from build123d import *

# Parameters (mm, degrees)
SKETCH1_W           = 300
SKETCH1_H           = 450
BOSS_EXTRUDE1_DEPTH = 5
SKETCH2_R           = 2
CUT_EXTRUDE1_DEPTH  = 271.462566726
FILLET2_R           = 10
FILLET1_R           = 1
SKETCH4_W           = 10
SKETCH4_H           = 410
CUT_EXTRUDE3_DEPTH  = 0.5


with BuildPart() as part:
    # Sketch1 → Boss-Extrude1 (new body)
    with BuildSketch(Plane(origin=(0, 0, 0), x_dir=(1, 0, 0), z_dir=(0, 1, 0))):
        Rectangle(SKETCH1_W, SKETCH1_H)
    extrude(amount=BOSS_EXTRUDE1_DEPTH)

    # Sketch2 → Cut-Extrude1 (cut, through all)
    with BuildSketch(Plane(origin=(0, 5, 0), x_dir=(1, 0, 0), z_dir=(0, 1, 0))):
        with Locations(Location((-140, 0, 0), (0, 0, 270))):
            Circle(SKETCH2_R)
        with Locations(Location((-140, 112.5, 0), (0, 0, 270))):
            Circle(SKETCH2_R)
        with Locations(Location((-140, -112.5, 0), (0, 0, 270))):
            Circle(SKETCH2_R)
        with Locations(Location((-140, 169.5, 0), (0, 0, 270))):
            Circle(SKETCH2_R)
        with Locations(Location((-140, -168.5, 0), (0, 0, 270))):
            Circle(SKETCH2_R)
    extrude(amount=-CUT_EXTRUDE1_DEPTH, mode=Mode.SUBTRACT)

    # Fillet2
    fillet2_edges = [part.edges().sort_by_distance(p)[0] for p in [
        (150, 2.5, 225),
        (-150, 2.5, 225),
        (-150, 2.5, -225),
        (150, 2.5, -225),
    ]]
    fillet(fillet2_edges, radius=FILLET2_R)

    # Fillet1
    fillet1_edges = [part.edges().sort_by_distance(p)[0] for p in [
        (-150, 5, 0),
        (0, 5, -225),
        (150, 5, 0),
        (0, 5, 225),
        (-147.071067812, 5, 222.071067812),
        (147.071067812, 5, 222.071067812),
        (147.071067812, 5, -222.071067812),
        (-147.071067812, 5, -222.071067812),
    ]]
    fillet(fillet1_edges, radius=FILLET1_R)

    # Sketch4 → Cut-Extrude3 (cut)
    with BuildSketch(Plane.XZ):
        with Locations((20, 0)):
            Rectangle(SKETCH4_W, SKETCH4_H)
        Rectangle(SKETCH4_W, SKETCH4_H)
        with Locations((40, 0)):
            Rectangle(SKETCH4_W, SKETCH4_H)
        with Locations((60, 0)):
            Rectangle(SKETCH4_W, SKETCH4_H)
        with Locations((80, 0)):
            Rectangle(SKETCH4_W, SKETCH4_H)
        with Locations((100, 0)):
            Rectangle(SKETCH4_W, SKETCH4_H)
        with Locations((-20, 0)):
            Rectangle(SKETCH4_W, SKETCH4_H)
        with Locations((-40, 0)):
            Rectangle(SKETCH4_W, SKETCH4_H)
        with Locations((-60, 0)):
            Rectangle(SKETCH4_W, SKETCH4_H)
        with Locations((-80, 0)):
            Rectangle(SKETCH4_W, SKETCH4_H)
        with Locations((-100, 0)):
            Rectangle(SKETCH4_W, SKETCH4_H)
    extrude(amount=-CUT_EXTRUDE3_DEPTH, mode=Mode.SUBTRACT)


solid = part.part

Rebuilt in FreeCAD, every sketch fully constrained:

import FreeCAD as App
import Part
import Sketcher


def edges_at(feature, points):
    """Names of the edges that pass closest to the given points."""
    edges = feature.Shape.Edges
    near = lambda p: min(range(len(edges)), key=lambda i: edges[i].distToShape(Part.Vertex(*p))[0])
    return sorted({f"Edge{near(p) + 1}" for p in points})

doc = App.newDocument("Part")
body = doc.addObject("PartDesign::Body", "Body")

# Sketch on XZ plane
sketch1 = body.newObject("Sketcher::SketchObject", "Sketch")
sketch1.AttachmentSupport = (doc.getObject("XZ_Plane"), [""])
sketch1.MapMode = "FlatFace"
sketch1.addGeometry(Part.LineSegment(App.Vector(-150, -225, 0), App.Vector(-150, 225, 0)), False)
sketch1.addGeometry(Part.LineSegment(App.Vector(-150, 225, 0), App.Vector(150, 225, 0)), False)
sketch1.addGeometry(Part.LineSegment(App.Vector(150, 225, 0), App.Vector(150, -225, 0)), False)
sketch1.addGeometry(Part.LineSegment(App.Vector(150, -225, 0), App.Vector(-150, -225, 0)), False)
sketch1.addConstraint(Sketcher.Constraint("Coincident", 0, 2, 1, 1))
sketch1.addConstraint(Sketcher.Constraint("Coincident", 1, 2, 2, 1))
sketch1.addConstraint(Sketcher.Constraint("Coincident", 2, 2, 3, 1))
sketch1.addConstraint(Sketcher.Constraint("Coincident", 3, 2, 0, 1))
sketch1.addConstraint(Sketcher.Constraint("Vertical", 0))
sketch1.addConstraint(Sketcher.Constraint("Horizontal", 1))
sketch1.addConstraint(Sketcher.Constraint("Vertical", 2))
sketch1.addConstraint(Sketcher.Constraint("Horizontal", 3))
sketch1.addConstraint(Sketcher.Constraint("Symmetric", 0, 2, 2, 2, -1, 1))
sketch1.addConstraint(Sketcher.Constraint("DistanceX", 1, 1, 1, 2, 300.0))
sketch1.addConstraint(Sketcher.Constraint("DistanceY", 0, 1, 0, 2, 450.0))
pad1 = body.newObject("PartDesign::Pad", "Pad")
pad1.Profile = sketch1
pad1.Length = 5
pad1.Reversed = True

# Sketch on XZ plane
sketch2 = body.newObject("Sketcher::SketchObject", "Sketch001")
sketch2.AttachmentSupport = (doc.getObject("XZ_Plane"), [""])
sketch2.MapMode = "FlatFace"
sketch2.AttachmentOffset = App.Placement(App.Vector(0, 0, -5), App.Rotation())
sketch2.addGeometry(Part.Circle(App.Vector(-140, 0, 0), App.Vector(0, 0, 1), 2), False)
sketch2.addGeometry(Part.Circle(App.Vector(-140, -112.5, 0), App.Vector(0, 0, 1), 2), False)
sketch2.addGeometry(Part.Circle(App.Vector(-140, 112.5, 0), App.Vector(0, 0, 1), 2), False)
sketch2.addGeometry(Part.Circle(App.Vector(-140, -169.5, 0), App.Vector(0, 0, 1), 2), False)
sketch2.addGeometry(Part.Circle(App.Vector(-140, 168.5, 0), App.Vector(0, 0, 1), 2), False)
sketch2.addConstraint(Sketcher.Constraint("Equal", 0, 1))
sketch2.addConstraint(Sketcher.Constraint("Equal", 1, 2))
sketch2.addConstraint(Sketcher.Constraint("Equal", 2, 3))
sketch2.addConstraint(Sketcher.Constraint("Equal", 3, 4))
sketch2.addConstraint(Sketcher.Constraint("Symmetric", 1, 3, 2, 3, -1))
sketch2.addConstraint(Sketcher.Constraint("PointOnObject", 0, 3, -1))
sketch2.addConstraint(Sketcher.Constraint("Vertical", 0, 3, 1, 3))
sketch2.addConstraint(Sketcher.Constraint("Vertical", 2, 3, 3, 3))
sketch2.addConstraint(Sketcher.Constraint("Vertical", 3, 3, 4, 3))
sketch2.addConstraint(Sketcher.Constraint("Diameter", 0, 4.0))
sketch2.addConstraint(Sketcher.Constraint("DistanceX", 0, 3, -1, 1, 140.0))
sketch2.addConstraint(Sketcher.Constraint("DistanceY", 1, 3, 2, 3, 225.0))
sketch2.addConstraint(Sketcher.Constraint("DistanceY", 3, 3, 1, 3, 57.0))
sketch2.addConstraint(Sketcher.Constraint("DistanceY", 2, 3, 4, 3, 56.0))
pocket1 = body.newObject("PartDesign::Pocket", "Pocket")
pocket1.Profile = sketch2
pocket1.Type = "ThroughAll"
pocket1.Reversed = True
doc.recompute()

fillet = body.newObject("PartDesign::Fillet", "Fillet")
fillet.Base = (pocket1, edges_at(pocket1, [
    (150, 2.5, 225),
    (-150, 2.5, 225),
    (-150, 2.5, -225),
    (150, 2.5, -225),
]))
fillet.Radius = 10
doc.recompute()

fillet2 = body.newObject("PartDesign::Fillet", "Fillet001")
fillet2.Base = (fillet, edges_at(fillet, [
    (-150, 5, 0),
    (0, 5, -225),
    (150, 5, 0),
    (0, 5, 225),
    (-147.071, 5, 222.071),
    (147.071, 5, 222.071),
    (147.071, 5, -222.071),
    (-147.071, 5, -222.071),
]))
fillet2.Radius = 1

# Sketch on XZ plane
sketch3 = body.newObject("Sketcher::SketchObject", "Sketch002")
sketch3.AttachmentSupport = (doc.getObject("XZ_Plane"), [""])
sketch3.MapMode = "FlatFace"
sketch3.addGeometry(Part.LineSegment(App.Vector(15, 205, 0), App.Vector(15, -205, 0)), False)
sketch3.addGeometry(Part.LineSegment(App.Vector(15, -205, 0), App.Vector(25, -205, 0)), False)
sketch3.addGeometry(Part.LineSegment(App.Vector(25, -205, 0), App.Vector(25, 205, 0)), False)
sketch3.addGeometry(Part.LineSegment(App.Vector(25, 205, 0), App.Vector(15, 205, 0)), False)
sketch3.addGeometry(Part.LineSegment(App.Vector(-5, 205, 0), App.Vector(-5, -205, 0)), False)
sketch3.addGeometry(Part.LineSegment(App.Vector(-5, -205, 0), App.Vector(5, -205, 0)), False)
sketch3.addGeometry(Part.LineSegment(App.Vector(5, -205, 0), App.Vector(5, 205, 0)), False)
sketch3.addGeometry(Part.LineSegment(App.Vector(5, 205, 0), App.Vector(-5, 205, 0)), False)
sketch3.addGeometry(Part.LineSegment(App.Vector(35, 205, 0), App.Vector(35, -205, 0)), False)
sketch3.addGeometry(Part.LineSegment(App.Vector(35, -205, 0), App.Vector(45, -205, 0)), False)
sketch3.addGeometry(Part.LineSegment(App.Vector(45, -205, 0), App.Vector(45, 205, 0)), False)
sketch3.addGeometry(Part.LineSegment(App.Vector(45, 205, 0), App.Vector(35, 205, 0)), False)
sketch3.addGeometry(Part.LineSegment(App.Vector(55, 205, 0), App.Vector(55, -205, 0)), False)
sketch3.addGeometry(Part.LineSegment(App.Vector(55, -205, 0), App.Vector(65, -205, 0)), False)
sketch3.addGeometry(Part.LineSegment(App.Vector(65, -205, 0), App.Vector(65, 205, 0)), False)
sketch3.addGeometry(Part.LineSegment(App.Vector(65, 205, 0), App.Vector(55, 205, 0)), False)
sketch3.addGeometry(Part.LineSegment(App.Vector(75, 205, 0), App.Vector(75, -205, 0)), False)
sketch3.addGeometry(Part.LineSegment(App.Vector(75, -205, 0), App.Vector(85, -205, 0)), False)
sketch3.addGeometry(Part.LineSegment(App.Vector(85, -205, 0), App.Vector(85, 205, 0)), False)
sketch3.addGeometry(Part.LineSegment(App.Vector(85, 205, 0), App.Vector(75, 205, 0)), False)
sketch3.addGeometry(Part.LineSegment(App.Vector(95, 205, 0), App.Vector(95, -205, 0)), False)
sketch3.addGeometry(Part.LineSegment(App.Vector(95, -205, 0), App.Vector(105, -205, 0)), False)
sketch3.addGeometry(Part.LineSegment(App.Vector(105, -205, 0), App.Vector(105, 205, 0)), False)
sketch3.addGeometry(Part.LineSegment(App.Vector(105, 205, 0), App.Vector(95, 205, 0)), False)
sketch3.addGeometry(Part.LineSegment(App.Vector(-25, 205, 0), App.Vector(-25, -205, 0)), False)
sketch3.addGeometry(Part.LineSegment(App.Vector(-25, -205, 0), App.Vector(-15, -205, 0)), False)
sketch3.addGeometry(Part.LineSegment(App.Vector(-15, -205, 0), App.Vector(-15, 205, 0)), False)
sketch3.addGeometry(Part.LineSegment(App.Vector(-15, 205, 0), App.Vector(-25, 205, 0)), False)
sketch3.addGeometry(Part.LineSegment(App.Vector(-45, 205, 0), App.Vector(-45, -205, 0)), False)
sketch3.addGeometry(Part.LineSegment(App.Vector(-45, -205, 0), App.Vector(-35, -205, 0)), False)
sketch3.addGeometry(Part.LineSegment(App.Vector(-35, -205, 0), App.Vector(-35, 205, 0)), False)
sketch3.addGeometry(Part.LineSegment(App.Vector(-35, 205, 0), App.Vector(-45, 205, 0)), False)
sketch3.addGeometry(Part.LineSegment(App.Vector(-65, 205, 0), App.Vector(-65, -205, 0)), False)
sketch3.addGeometry(Part.LineSegment(App.Vector(-65, -205, 0), App.Vector(-55, -205, 0)), False)
sketch3.addGeometry(Part.LineSegment(App.Vector(-55, -205, 0), App.Vector(-55, 205, 0)), False)
sketch3.addGeometry(Part.LineSegment(App.Vector(-55, 205, 0), App.Vector(-65, 205, 0)), False)
sketch3.addGeometry(Part.LineSegment(App.Vector(-85, 205, 0), App.Vector(-85, -205, 0)), False)
sketch3.addGeometry(Part.LineSegment(App.Vector(-85, -205, 0), App.Vector(-75, -205, 0)), False)
sketch3.addGeometry(Part.LineSegment(App.Vector(-75, -205, 0), App.Vector(-75, 205, 0)), False)
sketch3.addGeometry(Part.LineSegment(App.Vector(-75, 205, 0), App.Vector(-85, 205, 0)), False)
sketch3.addGeometry(Part.LineSegment(App.Vector(-105, 205, 0), App.Vector(-105, -205, 0)), False)
sketch3.addGeometry(Part.LineSegment(App.Vector(-105, -205, 0), App.Vector(-95, -205, 0)), False)
sketch3.addGeometry(Part.LineSegment(App.Vector(-95, -205, 0), App.Vector(-95, 205, 0)), False)
sketch3.addGeometry(Part.LineSegment(App.Vector(-95, 205, 0), App.Vector(-105, 205, 0)), False)
sketch3.addConstraint(Sketcher.Constraint("Coincident", 0, 2, 1, 1))
sketch3.addConstraint(Sketcher.Constraint("Coincident", 1, 2, 2, 1))
sketch3.addConstraint(Sketcher.Constraint("Coincident", 2, 2, 3, 1))
sketch3.addConstraint(Sketcher.Constraint("Coincident", 3, 2, 0, 1))
sketch3.addConstraint(Sketcher.Constraint("Coincident", 4, 2, 5, 1))
sketch3.addConstraint(Sketcher.Constraint("Coincident", 5, 2, 6, 1))
sketch3.addConstraint(Sketcher.Constraint("Coincident", 6, 2, 7, 1))
sketch3.addConstraint(Sketcher.Constraint("Coincident", 7, 2, 4, 1))
sketch3.addConstraint(Sketcher.Constraint("Coincident", 8, 2, 9, 1))
sketch3.addConstraint(Sketcher.Constraint("Coincident", 9, 2, 10, 1))
sketch3.addConstraint(Sketcher.Constraint("Coincident", 10, 2, 11, 1))
sketch3.addConstraint(Sketcher.Constraint("Coincident", 11, 2, 8, 1))
sketch3.addConstraint(Sketcher.Constraint("Coincident", 12, 2, 13, 1))
sketch3.addConstraint(Sketcher.Constraint("Coincident", 13, 2, 14, 1))
sketch3.addConstraint(Sketcher.Constraint("Coincident", 14, 2, 15, 1))
sketch3.addConstraint(Sketcher.Constraint("Coincident", 15, 2, 12, 1))
sketch3.addConstraint(Sketcher.Constraint("Coincident", 16, 2, 17, 1))
sketch3.addConstraint(Sketcher.Constraint("Coincident", 17, 2, 18, 1))
sketch3.addConstraint(Sketcher.Constraint("Coincident", 18, 2, 19, 1))
sketch3.addConstraint(Sketcher.Constraint("Coincident", 19, 2, 16, 1))
sketch3.addConstraint(Sketcher.Constraint("Coincident", 20, 2, 21, 1))
sketch3.addConstraint(Sketcher.Constraint("Coincident", 21, 2, 22, 1))
sketch3.addConstraint(Sketcher.Constraint("Coincident", 22, 2, 23, 1))
sketch3.addConstraint(Sketcher.Constraint("Coincident", 23, 2, 20, 1))
sketch3.addConstraint(Sketcher.Constraint("Coincident", 24, 2, 25, 1))
sketch3.addConstraint(Sketcher.Constraint("Coincident", 25, 2, 26, 1))
sketch3.addConstraint(Sketcher.Constraint("Coincident", 26, 2, 27, 1))
sketch3.addConstraint(Sketcher.Constraint("Coincident", 27, 2, 24, 1))
sketch3.addConstraint(Sketcher.Constraint("Coincident", 28, 2, 29, 1))
sketch3.addConstraint(Sketcher.Constraint("Coincident", 29, 2, 30, 1))
sketch3.addConstraint(Sketcher.Constraint("Coincident", 30, 2, 31, 1))
sketch3.addConstraint(Sketcher.Constraint("Coincident", 31, 2, 28, 1))
sketch3.addConstraint(Sketcher.Constraint("Coincident", 32, 2, 33, 1))
sketch3.addConstraint(Sketcher.Constraint("Coincident", 33, 2, 34, 1))
sketch3.addConstraint(Sketcher.Constraint("Coincident", 34, 2, 35, 1))
sketch3.addConstraint(Sketcher.Constraint("Coincident", 35, 2, 32, 1))
sketch3.addConstraint(Sketcher.Constraint("Coincident", 36, 2, 37, 1))
sketch3.addConstraint(Sketcher.Constraint("Coincident", 37, 2, 38, 1))
sketch3.addConstraint(Sketcher.Constraint("Coincident", 38, 2, 39, 1))
sketch3.addConstraint(Sketcher.Constraint("Coincident", 39, 2, 36, 1))
sketch3.addConstraint(Sketcher.Constraint("Coincident", 40, 2, 41, 1))
sketch3.addConstraint(Sketcher.Constraint("Coincident", 41, 2, 42, 1))
sketch3.addConstraint(Sketcher.Constraint("Coincident", 42, 2, 43, 1))
sketch3.addConstraint(Sketcher.Constraint("Coincident", 43, 2, 40, 1))
sketch3.addConstraint(Sketcher.Constraint("Vertical", 0))
sketch3.addConstraint(Sketcher.Constraint("Horizontal", 1))
sketch3.addConstraint(Sketcher.Constraint("Vertical", 2))
sketch3.addConstraint(Sketcher.Constraint("Horizontal", 3))
sketch3.addConstraint(Sketcher.Constraint("Vertical", 4))
sketch3.addConstraint(Sketcher.Constraint("Horizontal", 5))
sketch3.addConstraint(Sketcher.Constraint("Vertical", 6))
sketch3.addConstraint(Sketcher.Constraint("Horizontal", 7))
sketch3.addConstraint(Sketcher.Constraint("Vertical", 8))
sketch3.addConstraint(Sketcher.Constraint("Horizontal", 9))
sketch3.addConstraint(Sketcher.Constraint("Vertical", 10))
sketch3.addConstraint(Sketcher.Constraint("Horizontal", 11))
sketch3.addConstraint(Sketcher.Constraint("Vertical", 12))
sketch3.addConstraint(Sketcher.Constraint("Horizontal", 13))
sketch3.addConstraint(Sketcher.Constraint("Vertical", 14))
sketch3.addConstraint(Sketcher.Constraint("Horizontal", 15))
sketch3.addConstraint(Sketcher.Constraint("Vertical", 16))
sketch3.addConstraint(Sketcher.Constraint("Horizontal", 17))
sketch3.addConstraint(Sketcher.Constraint("Vertical", 18))
sketch3.addConstraint(Sketcher.Constraint("Horizontal", 19))
sketch3.addConstraint(Sketcher.Constraint("Vertical", 20))
sketch3.addConstraint(Sketcher.Constraint("Horizontal", 21))
sketch3.addConstraint(Sketcher.Constraint("Vertical", 22))
sketch3.addConstraint(Sketcher.Constraint("Horizontal", 23))
sketch3.addConstraint(Sketcher.Constraint("Vertical", 24))
sketch3.addConstraint(Sketcher.Constraint("Horizontal", 25))
sketch3.addConstraint(Sketcher.Constraint("Vertical", 26))
sketch3.addConstraint(Sketcher.Constraint("Horizontal", 27))
sketch3.addConstraint(Sketcher.Constraint("Vertical", 28))
sketch3.addConstraint(Sketcher.Constraint("Horizontal", 29))
sketch3.addConstraint(Sketcher.Constraint("Vertical", 30))
sketch3.addConstraint(Sketcher.Constraint("Horizontal", 31))
sketch3.addConstraint(Sketcher.Constraint("Vertical", 32))
sketch3.addConstraint(Sketcher.Constraint("Horizontal", 33))
sketch3.addConstraint(Sketcher.Constraint("Vertical", 34))
sketch3.addConstraint(Sketcher.Constraint("Horizontal", 35))
sketch3.addConstraint(Sketcher.Constraint("Vertical", 36))
sketch3.addConstraint(Sketcher.Constraint("Horizontal", 37))
sketch3.addConstraint(Sketcher.Constraint("Vertical", 38))
sketch3.addConstraint(Sketcher.Constraint("Horizontal", 39))
sketch3.addConstraint(Sketcher.Constraint("Vertical", 40))
sketch3.addConstraint(Sketcher.Constraint("Horizontal", 41))
sketch3.addConstraint(Sketcher.Constraint("Vertical", 42))
sketch3.addConstraint(Sketcher.Constraint("Horizontal", 43))
sketch3.addConstraint(Sketcher.Constraint("Symmetric", 4, 2, 6, 2, -1, 1))
sketch3.addConstraint(Sketcher.Constraint("Symmetric", 2, 2, 24, 2, -1, 1))
sketch3.addConstraint(Sketcher.Constraint("Symmetric", 0, 2, 26, 2, -1, 1))
sketch3.addConstraint(Sketcher.Constraint("Symmetric", 10, 2, 28, 2, -1, 1))
sketch3.addConstraint(Sketcher.Constraint("Symmetric", 8, 2, 30, 2, -1, 1))
sketch3.addConstraint(Sketcher.Constraint("Symmetric", 14, 2, 32, 2, -1, 1))
sketch3.addConstraint(Sketcher.Constraint("Symmetric", 12, 2, 34, 2, -1, 1))
sketch3.addConstraint(Sketcher.Constraint("Symmetric", 18, 2, 36, 2, -1, 1))
sketch3.addConstraint(Sketcher.Constraint("Symmetric", 16, 2, 38, 2, -1, 1))
sketch3.addConstraint(Sketcher.Constraint("Symmetric", 22, 2, 40, 2, -1, 1))
sketch3.addConstraint(Sketcher.Constraint("Symmetric", 20, 2, 42, 2, -1, 1))
sketch3.addConstraint(Sketcher.Constraint("Horizontal", 1, 2, 4, 2))
sketch3.addConstraint(Sketcher.Constraint("Horizontal", 3, 2, 6, 2))
sketch3.addConstraint(Sketcher.Constraint("Horizontal", 5, 2, 8, 2))
sketch3.addConstraint(Sketcher.Constraint("Horizontal", 7, 2, 10, 2))
sketch3.addConstraint(Sketcher.Constraint("Horizontal", 9, 2, 12, 2))
sketch3.addConstraint(Sketcher.Constraint("Horizontal", 11, 2, 14, 2))
sketch3.addConstraint(Sketcher.Constraint("Horizontal", 13, 2, 16, 2))
sketch3.addConstraint(Sketcher.Constraint("Horizontal", 15, 2, 18, 2))
sketch3.addConstraint(Sketcher.Constraint("Horizontal", 17, 2, 20, 2))
sketch3.addConstraint(Sketcher.Constraint("Horizontal", 19, 2, 22, 2))
sketch3.addConstraint(Sketcher.Constraint("Equal", 3, 5))
sketch3.addConstraint(Sketcher.Constraint("Equal", 7, 9))
sketch3.addConstraint(Sketcher.Constraint("Equal", 11, 13))
sketch3.addConstraint(Sketcher.Constraint("Equal", 15, 17))
sketch3.addConstraint(Sketcher.Constraint("Equal", 19, 21))
sketch3.addConstraint(Sketcher.Constraint("DistanceX", 1, 1, 1, 2, 10.0))
sketch3.addConstraint(Sketcher.Constraint("DistanceY", 0, 2, 0, 1, 410.0))
sketch3.addConstraint(Sketcher.Constraint("DistanceX", -1, 1, 0, 2, 15.0))
sketch3.addConstraint(Sketcher.Constraint("DistanceX", -1, 1, 8, 2, 35.0))
sketch3.addConstraint(Sketcher.Constraint("DistanceX", -1, 1, 12, 2, 55.0))
sketch3.addConstraint(Sketcher.Constraint("DistanceX", -1, 1, 16, 2, 75.0))
sketch3.addConstraint(Sketcher.Constraint("DistanceX", -1, 1, 20, 2, 95.0))
pocket2 = body.newObject("PartDesign::Pocket", "Pocket001")
pocket2.Profile = sketch3
pocket2.Length = 0.5

doc.recompute()
